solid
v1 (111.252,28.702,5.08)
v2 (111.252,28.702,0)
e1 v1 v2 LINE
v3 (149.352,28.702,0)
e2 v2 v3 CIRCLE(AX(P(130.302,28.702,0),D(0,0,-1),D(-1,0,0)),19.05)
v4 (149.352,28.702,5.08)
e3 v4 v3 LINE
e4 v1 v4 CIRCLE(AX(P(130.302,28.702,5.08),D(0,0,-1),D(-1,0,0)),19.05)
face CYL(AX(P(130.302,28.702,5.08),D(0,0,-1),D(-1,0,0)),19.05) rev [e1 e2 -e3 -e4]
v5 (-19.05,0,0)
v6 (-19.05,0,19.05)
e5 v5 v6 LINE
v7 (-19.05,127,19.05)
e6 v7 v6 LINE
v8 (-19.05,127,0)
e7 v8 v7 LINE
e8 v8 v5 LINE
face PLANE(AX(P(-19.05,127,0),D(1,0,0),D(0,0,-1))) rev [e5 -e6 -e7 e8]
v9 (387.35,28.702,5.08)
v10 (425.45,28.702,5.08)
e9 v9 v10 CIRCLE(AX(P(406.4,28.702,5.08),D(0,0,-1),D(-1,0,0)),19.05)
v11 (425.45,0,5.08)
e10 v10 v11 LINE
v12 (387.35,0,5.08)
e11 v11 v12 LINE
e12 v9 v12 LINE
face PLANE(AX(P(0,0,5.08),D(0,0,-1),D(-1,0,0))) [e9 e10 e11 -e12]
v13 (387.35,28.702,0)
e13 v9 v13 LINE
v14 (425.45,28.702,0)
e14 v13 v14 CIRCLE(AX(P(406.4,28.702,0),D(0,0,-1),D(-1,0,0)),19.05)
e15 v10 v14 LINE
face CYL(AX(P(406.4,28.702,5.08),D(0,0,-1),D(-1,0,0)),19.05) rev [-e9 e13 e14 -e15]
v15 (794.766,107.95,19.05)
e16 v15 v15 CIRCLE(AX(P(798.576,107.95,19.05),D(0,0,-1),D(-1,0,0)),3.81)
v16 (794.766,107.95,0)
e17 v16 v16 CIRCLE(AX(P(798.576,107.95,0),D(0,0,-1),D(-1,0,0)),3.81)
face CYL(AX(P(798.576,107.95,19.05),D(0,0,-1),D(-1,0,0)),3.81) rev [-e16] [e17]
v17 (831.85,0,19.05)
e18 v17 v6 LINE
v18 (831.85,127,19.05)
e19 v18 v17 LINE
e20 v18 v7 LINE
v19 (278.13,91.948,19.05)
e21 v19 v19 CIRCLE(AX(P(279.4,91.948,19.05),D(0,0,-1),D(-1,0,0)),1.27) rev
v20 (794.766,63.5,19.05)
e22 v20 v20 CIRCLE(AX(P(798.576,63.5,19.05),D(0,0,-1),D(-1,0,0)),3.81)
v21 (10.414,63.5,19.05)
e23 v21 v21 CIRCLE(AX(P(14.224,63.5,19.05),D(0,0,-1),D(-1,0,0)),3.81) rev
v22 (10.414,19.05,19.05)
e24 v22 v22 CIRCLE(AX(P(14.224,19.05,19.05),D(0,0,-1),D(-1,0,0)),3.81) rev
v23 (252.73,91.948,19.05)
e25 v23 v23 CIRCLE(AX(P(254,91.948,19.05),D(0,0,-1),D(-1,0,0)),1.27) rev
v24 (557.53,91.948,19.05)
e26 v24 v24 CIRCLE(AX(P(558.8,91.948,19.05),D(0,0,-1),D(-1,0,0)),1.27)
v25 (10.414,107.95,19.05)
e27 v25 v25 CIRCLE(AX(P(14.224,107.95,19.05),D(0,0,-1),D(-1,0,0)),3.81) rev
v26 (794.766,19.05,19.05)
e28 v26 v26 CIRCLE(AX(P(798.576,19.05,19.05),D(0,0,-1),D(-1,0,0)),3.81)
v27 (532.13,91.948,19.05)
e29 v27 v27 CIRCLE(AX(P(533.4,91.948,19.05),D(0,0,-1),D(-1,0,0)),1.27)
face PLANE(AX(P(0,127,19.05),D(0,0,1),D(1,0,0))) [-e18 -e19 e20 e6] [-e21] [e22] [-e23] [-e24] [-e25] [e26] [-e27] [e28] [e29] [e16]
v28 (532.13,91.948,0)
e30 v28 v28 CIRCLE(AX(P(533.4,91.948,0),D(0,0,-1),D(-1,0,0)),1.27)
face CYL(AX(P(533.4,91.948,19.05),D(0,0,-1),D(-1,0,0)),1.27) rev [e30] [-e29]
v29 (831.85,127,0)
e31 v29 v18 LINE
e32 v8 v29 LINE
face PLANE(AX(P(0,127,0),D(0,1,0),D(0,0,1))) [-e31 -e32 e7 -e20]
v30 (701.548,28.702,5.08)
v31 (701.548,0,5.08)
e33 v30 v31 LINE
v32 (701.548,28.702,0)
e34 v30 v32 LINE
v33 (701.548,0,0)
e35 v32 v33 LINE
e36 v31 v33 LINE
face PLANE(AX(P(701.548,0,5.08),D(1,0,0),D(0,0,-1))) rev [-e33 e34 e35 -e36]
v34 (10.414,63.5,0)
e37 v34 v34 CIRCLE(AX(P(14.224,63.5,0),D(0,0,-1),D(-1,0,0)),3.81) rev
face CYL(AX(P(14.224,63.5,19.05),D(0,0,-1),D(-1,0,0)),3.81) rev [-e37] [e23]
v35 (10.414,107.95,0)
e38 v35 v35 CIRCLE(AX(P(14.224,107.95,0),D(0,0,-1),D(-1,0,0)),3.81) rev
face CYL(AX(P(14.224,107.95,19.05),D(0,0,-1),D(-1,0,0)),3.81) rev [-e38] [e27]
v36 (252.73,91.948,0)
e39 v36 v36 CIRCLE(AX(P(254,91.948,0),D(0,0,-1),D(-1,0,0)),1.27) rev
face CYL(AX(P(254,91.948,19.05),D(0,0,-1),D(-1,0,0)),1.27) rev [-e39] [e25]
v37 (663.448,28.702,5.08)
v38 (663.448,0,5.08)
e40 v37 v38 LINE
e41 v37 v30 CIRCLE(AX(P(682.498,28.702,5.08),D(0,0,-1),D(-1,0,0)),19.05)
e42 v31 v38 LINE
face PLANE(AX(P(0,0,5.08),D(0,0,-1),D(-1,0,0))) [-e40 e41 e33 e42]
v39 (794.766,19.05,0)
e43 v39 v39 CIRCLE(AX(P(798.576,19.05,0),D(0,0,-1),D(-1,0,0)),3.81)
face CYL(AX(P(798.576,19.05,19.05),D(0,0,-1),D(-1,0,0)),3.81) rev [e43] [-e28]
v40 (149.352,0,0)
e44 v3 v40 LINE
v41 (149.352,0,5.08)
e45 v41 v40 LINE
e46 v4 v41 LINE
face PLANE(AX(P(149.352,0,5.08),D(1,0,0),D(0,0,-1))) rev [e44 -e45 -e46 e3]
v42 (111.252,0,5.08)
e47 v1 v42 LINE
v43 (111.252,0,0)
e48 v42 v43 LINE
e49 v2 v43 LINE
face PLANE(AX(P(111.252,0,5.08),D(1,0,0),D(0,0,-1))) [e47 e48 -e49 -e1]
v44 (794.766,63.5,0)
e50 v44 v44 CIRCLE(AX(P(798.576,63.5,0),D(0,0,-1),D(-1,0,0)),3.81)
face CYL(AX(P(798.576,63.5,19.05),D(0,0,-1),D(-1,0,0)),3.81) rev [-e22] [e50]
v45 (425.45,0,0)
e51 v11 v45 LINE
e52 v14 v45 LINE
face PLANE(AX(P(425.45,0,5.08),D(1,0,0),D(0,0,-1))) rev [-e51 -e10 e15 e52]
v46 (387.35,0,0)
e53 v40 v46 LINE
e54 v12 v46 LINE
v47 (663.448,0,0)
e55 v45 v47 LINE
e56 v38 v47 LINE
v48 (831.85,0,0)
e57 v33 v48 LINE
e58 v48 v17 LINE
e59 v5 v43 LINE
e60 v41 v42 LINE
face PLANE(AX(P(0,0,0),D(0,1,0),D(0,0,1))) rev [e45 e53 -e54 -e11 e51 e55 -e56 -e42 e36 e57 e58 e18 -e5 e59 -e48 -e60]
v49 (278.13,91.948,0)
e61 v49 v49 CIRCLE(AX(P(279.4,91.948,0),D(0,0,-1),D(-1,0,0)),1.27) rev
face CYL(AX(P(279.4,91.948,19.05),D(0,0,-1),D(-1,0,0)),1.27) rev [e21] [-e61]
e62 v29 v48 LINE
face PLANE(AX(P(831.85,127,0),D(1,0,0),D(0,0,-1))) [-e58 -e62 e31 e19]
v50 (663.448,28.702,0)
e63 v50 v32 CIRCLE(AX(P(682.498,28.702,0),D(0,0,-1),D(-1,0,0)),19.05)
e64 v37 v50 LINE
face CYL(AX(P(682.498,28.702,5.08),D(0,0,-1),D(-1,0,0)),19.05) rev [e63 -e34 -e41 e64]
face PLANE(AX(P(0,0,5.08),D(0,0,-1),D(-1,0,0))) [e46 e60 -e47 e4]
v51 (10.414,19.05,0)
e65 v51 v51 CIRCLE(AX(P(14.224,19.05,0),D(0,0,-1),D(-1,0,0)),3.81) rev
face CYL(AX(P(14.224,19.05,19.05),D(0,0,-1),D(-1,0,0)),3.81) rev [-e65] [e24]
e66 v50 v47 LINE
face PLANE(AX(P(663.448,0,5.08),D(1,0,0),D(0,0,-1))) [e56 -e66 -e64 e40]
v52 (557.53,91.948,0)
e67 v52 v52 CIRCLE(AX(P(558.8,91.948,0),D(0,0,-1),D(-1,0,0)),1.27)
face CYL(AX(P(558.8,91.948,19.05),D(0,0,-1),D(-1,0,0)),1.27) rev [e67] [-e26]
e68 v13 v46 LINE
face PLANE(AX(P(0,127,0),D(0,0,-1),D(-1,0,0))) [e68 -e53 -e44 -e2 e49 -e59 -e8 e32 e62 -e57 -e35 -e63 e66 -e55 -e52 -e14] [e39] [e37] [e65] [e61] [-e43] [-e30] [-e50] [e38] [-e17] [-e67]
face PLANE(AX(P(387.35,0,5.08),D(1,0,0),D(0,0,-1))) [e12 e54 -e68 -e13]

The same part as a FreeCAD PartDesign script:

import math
import FreeCAD as App
import Part
import Sketcher
Q = App.Units.Quantity


def add_polygon(sketch, points):
    """Adds a closed chain of lines whose ends are joined by coincident constraints."""
    first, n = sketch.GeometryCount, len(points)
    for a, b in zip(points, points[1:] + points[:1]):
        sketch.addGeometry(Part.LineSegment(App.Vector(*a, 0), App.Vector(*b, 0)), False)
    for i in range(n):
        sketch.addConstraint(Sketcher.Constraint("Coincident", first + i, 2, first + (i + 1) % n, 1))

doc = App.newDocument("Part")
body = doc.addObject("PartDesign::Body", "Body")

# Sketch on XZ plane
sketch1 = doc.addObject("Sketcher::SketchObject", "Sketch")
body.addObject(sketch1)
sketch1.AttachmentSupport = (doc.XZ_Plane, [""])
sketch1.MapMode = "FlatFace"
add_polygon(sketch1, [(832, 19), (832, 0), (-19, 0), (-19, 19)])  # lines 0-3
sketch1.addConstraint(Sketcher.Constraint("Vertical", 0))
sketch1.addConstraint(Sketcher.Constraint("Horizontal", 1))
sketch1.addConstraint(Sketcher.Constraint("Vertical", 2))
sketch1.addConstraint(Sketcher.Constraint("Horizontal", 3))
sketch1.addConstraint(Sketcher.Constraint("PointOnObject", 0, 2, -1))
sketch1.addConstraint(Sketcher.Constraint("DistanceX", 1, 2, 1, 1, Q("33.5 in")))
sketch1.addConstraint(Sketcher.Constraint("DistanceY", 0, 2, 0, 1, Q("0.75 in")))
sketch1.addConstraint(Sketcher.Constraint("DistanceX", -1, 1, 0, 2, Q("32.75 in")))
pad1 = doc.addObject("PartDesign::Pad", "Pad")
body.addObject(pad1)
pad1.Profile = sketch1
pad1.Length = Q("5 in")
pad1.Reversed = True

# Sketch on XY plane
sketch2 = doc.addObject("Sketcher::SketchObject", "Sketch001")
body.addObject(sketch2)
sketch2.AttachmentSupport = (doc.XY_Plane, [""])
sketch2.MapMode = "FlatFace"
sketch2.addGeometry(Part.Circle(App.Vector(14.2, 108, 0), App.Vector(0, 0, 1), 3.8), False)
sketch2.addGeometry(Part.Circle(App.Vector(14.2, 63.5, 0), App.Vector(0, 0, 1), 3.8), False)
sketch2.addGeometry(Part.Circle(App.Vector(14.2, 19.1, 0), App.Vector(0, 0, 1), 3.8), False)
sketch2.addGeometry(Part.Circle(App.Vector(798.6, 19.1, 0), App.Vector(0, 0, 1), 3.8), False)
sketch2.addGeometry(Part.Circle(App.Vector(798.6, 108, 0), App.Vector(0, 0, 1), 3.8), False)
sketch2.addGeometry(Part.Circle(App.Vector(798.6, 63.5, 0), App.Vector(0, 0, 1), 3.8), False)
sketch2.addConstraint(Sketcher.Constraint("Equal", 0, 1))
sketch2.addConstraint(Sketcher.Constraint("Equal", 1, 2))
sketch2.addConstraint(Sketcher.Constraint("Equal", 2, 3))
sketch2.addConstraint(Sketcher.Constraint("Equal", 3, 4))
sketch2.addConstraint(Sketcher.Constraint("Equal", 4, 5))
sketch2.addConstraint(Sketcher.Constraint("Horizontal", 2, 3, 3, 3))
sketch2.addConstraint(Sketcher.Constraint("Horizontal", 0, 3, 4, 3))
sketch2.addConstraint(Sketcher.Constraint("Horizontal", 1, 3, 5, 3))
sketch2.addConstraint(Sketcher.Constraint("Vertical", 0, 3, 1, 3))
sketch2.addConstraint(Sketcher.Constraint("Vertical", 1, 3, 2, 3))
sketch2.addConstraint(Sketcher.Constraint("Vertical", 3, 3, 4, 3))
sketch2.addConstraint(Sketcher.Constraint("Vertical", 4, 3, 5, 3))
sketch2.addConstraint(Sketcher.Constraint("Diameter", 0, Q("0.3 in")))
sketch2.addConstraint(Sketcher.Constraint("DistanceY", -1, 1, 1, 3, Q("2.5 in")))
sketch2.addConstraint(Sketcher.Constraint("DistanceY", 2, 3, 0, 3, Q("3.5 in")))
sketch2.addConstraint(Sketcher.Constraint("DistanceX", -1, 1, 0, 3, Q("0.56 in")))
sketch2.addConstraint(Sketcher.Constraint("DistanceY", -1, 1, 0, 3, Q("4.25 in")))
sketch2.addConstraint(Sketcher.Constraint("DistanceX", -1, 1, 3, 3, Q("31.44 in")))
pocket1 = doc.addObject("PartDesign::Pocket", "Pocket")
body.addObject(pocket1)
pocket1.Profile = sketch2
pocket1.Length = Q("0.75 in")
pocket1.Reversed = True

# Sketch on XY plane
sketch3 = doc.addObject("Sketcher::SketchObject", "Sketch002")
body.addObject(sketch3)
sketch3.AttachmentSupport = (doc.XY_Plane, [""])
sketch3.MapMode = "FlatFace"
sketch3.addGeometry(Part.LineSegment(App.Vector(702, 29, 0), App.Vector(702, 0, 0)), False)
sketch3.addGeometry(Part.LineSegment(App.Vector(702, 0, 0), App.Vector(663, 0, 0)), False)
sketch3.addGeometry(Part.LineSegment(App.Vector(663, 0, 0), App.Vector(663, 29, 0)), False)
sketch3.addGeometry(Part.ArcOfCircle(Part.Circle(App.Vector(682, 29, 0), App.Vector(0, 0, 1), 19), math.radians(0), math.radians(180)), False)
sketch3.addGeometry(Part.ArcOfCircle(Part.Circle(App.Vector(406, 29, 0), App.Vector(0, 0, 1), 19), math.radians(0), math.radians(180)), False)
sketch3.addGeometry(Part.LineSegment(App.Vector(425, 29, 0), App.Vector(425, 0, 0)), False)
sketch3.addGeometry(Part.LineSegment(App.Vector(425, 0, 0), App.Vector(387, 0, 0)), False)
sketch3.addGeometry(Part.LineSegment(App.Vector(387, 0, 0), App.Vector(387, 29, 0)), False)
sketch3.addGeometry(Part.LineSegment(App.Vector(149, 29, 0), App.Vector(149, 0, 0)), False)
sketch3.addGeometry(Part.LineSegment(App.Vector(149, 0, 0), App.Vector(111, 0, 0)), False)
sketch3.addGeometry(Part.LineSegment(App.Vector(111, 0, 0), App.Vector(111, 29, 0)), False)
sketch3.addGeometry(Part.ArcOfCircle(Part.Circle(App.Vector(130, 29, 0), App.Vector(0, 0, 1), 19), math.radians(0), math.radians(180)), False)
sketch3.addConstraint(Sketcher.Constraint("Coincident", 0, 2, 1, 1))
sketch3.addConstraint(Sketcher.Constraint("Coincident", 1, 2, 2, 1))
sketch3.addConstraint(Sketcher.Constraint("Tangent", 2, 2, 3, 2))
sketch3.addConstraint(Sketcher.Constraint("Tangent", 3, 1, 0, 1))
sketch3.addConstraint(Sketcher.Constraint("Tangent", 4, 1, 5, 1))
sketch3.addConstraint(Sketcher.Constraint("Coincident", 5, 2, 6, 1))
sketch3.addConstraint(Sketcher.Constraint("Coincident", 6, 2, 7, 1))
sketch3.addConstraint(Sketcher.Constraint("Tangent", 7, 2, 4, 2))
sketch3.addConstraint(Sketcher.Constraint("Coincident", 8, 2, 9, 1))
sketch3.addConstraint(Sketcher.Constraint("Coincident", 9, 2, 10, 1))
sketch3.addConstraint(Sketcher.Constraint("Tangent", 10, 2, 11, 2))
sketch3.addConstraint(Sketcher.Constraint("Tangent", 11, 1, 8, 1))
sketch3.addConstraint(Sketcher.Constraint("Vertical", 0))
sketch3.addConstraint(Sketcher.Constraint("Horizontal", 1))
sketch3.addConstraint(Sketcher.Constraint("Vertical", 2))
sketch3.addConstraint(Sketcher.Constraint("Vertical", 5))
sketch3.addConstraint(Sketcher.Constraint("Horizontal", 6))
sketch3.addConstraint(Sketcher.Constraint("Vertical", 7))
sketch3.addConstraint(Sketcher.Constraint("Vertical", 8))
sketch3.addConstraint(Sketcher.Constraint("Horizontal", 9))
sketch3.addConstraint(Sketcher.Constraint("Vertical", 10))
sketch3.addConstraint(Sketcher.Constraint("Equal", 3, 4))
sketch3.addConstraint(Sketcher.Constraint("Equal", 4, 11))
sketch3.addConstraint(Sketcher.Constraint("PointOnObject", 0, 2, -1))
sketch3.addConstraint(Sketcher.Constraint("PointOnObject", 5, 2, -1))
sketch3.addConstraint(Sketcher.Constraint("PointOnObject", 8, 2, -1))
sketch3.addConstraint(Sketcher.Constraint("Horizontal", 3, 3, 4, 3))
sketch3.addConstraint(Sketcher.Constraint("Horizontal", 4, 3, 11, 3))
sketch3.addConstraint(Sketcher.Constraint("Radius", 3, Q("0.75 in")))
sketch3.addConstraint(Sketcher.Constraint("DistanceX", -1, 1, 4, 3, Q("16 in")))
sketch3.addConstraint(Sketcher.Constraint("DistanceY", 0, 2, 0, 1, Q("1.13 in")))
sketch3.addConstraint(Sketcher.Constraint("DistanceX", -1, 1, 3, 3, Q("26.87 in")))
sketch3.addConstraint(Sketcher.Constraint("DistanceX", -1, 1, 11, 3, Q("5.13 in")))
pocket2 = doc.addObject("PartDesign::Pocket", "Pocket001")
body.addObject(pocket2)
pocket2.Profile = sketch3
pocket2.Length = Q("0.2 in")
pocket2.Reversed = True

# Sketch on XY plane
sketch4 = doc.addObject("Sketcher::SketchObject", "Sketch003")
body.addObject(sketch4)
sketch4.AttachmentSupport = (doc.XY_Plane, [""])
sketch4.MapMode = "FlatFace"
sketch4.addGeometry(Part.Circle(App.Vector(558.8, 91.9, 0), App.Vector(0, 0, 1), 1.3), False)
sketch4.addGeometry(Part.Circle(App.Vector(533.4, 91.9, 0), App.Vector(0, 0, 1), 1.3), False)
sketch4.addGeometry(Part.Circle(App.Vector(279.4, 91.9, 0), App.Vector(0, 0, 1), 1.3), False)
sketch4.addGeometry(Part.Circle(App.Vector(254, 91.9, 0), App.Vector(0, 0, 1), 1.3), False)
sketch4.addConstraint(Sketcher.Constraint("Equal", 0, 1))
sketch4.addConstraint(Sketcher.Constraint("Equal", 1, 2))
sketch4.addConstraint(Sketcher.Constraint("Equal", 2, 3))
sketch4.addConstraint(Sketcher.Constraint("Horizontal", 0, 3, 1, 3))
sketch4.addConstraint(Sketcher.Constraint("Horizontal", 1, 3, 2, 3))
sketch4.addConstraint(Sketcher.Constraint("Horizontal", 2, 3, 3, 3))
sketch4.addConstraint(Sketcher.Constraint("Diameter", 0, Q("0.1 in")))
sketch4.addConstraint(Sketcher.Constraint("DistanceX", -1, 1, 0, 3, Q("22 in")))
sketch4.addConstraint(Sketcher.Constraint("DistanceX", -1, 1, 1, 3, Q("21 in")))
sketch4.addConstraint(Sketcher.Constraint("DistanceX", -1, 1, 2, 3, Q("11 in")))
sketch4.addConstraint(Sketcher.Constraint("DistanceX", -1, 1, 3, 3, Q("10 in")))
sketch4.addConstraint(Sketcher.Constraint("DistanceY", -1, 1, 0, 3, Q("3.62 in")))
pocket3 = doc.addObject("PartDesign::Pocket", "Pocket002")
body.addObject(pocket3)
pocket3.Profile = sketch4
pocket3.Length = Q("0.75 in")
pocket3.Reversed = True

doc.recompute()
